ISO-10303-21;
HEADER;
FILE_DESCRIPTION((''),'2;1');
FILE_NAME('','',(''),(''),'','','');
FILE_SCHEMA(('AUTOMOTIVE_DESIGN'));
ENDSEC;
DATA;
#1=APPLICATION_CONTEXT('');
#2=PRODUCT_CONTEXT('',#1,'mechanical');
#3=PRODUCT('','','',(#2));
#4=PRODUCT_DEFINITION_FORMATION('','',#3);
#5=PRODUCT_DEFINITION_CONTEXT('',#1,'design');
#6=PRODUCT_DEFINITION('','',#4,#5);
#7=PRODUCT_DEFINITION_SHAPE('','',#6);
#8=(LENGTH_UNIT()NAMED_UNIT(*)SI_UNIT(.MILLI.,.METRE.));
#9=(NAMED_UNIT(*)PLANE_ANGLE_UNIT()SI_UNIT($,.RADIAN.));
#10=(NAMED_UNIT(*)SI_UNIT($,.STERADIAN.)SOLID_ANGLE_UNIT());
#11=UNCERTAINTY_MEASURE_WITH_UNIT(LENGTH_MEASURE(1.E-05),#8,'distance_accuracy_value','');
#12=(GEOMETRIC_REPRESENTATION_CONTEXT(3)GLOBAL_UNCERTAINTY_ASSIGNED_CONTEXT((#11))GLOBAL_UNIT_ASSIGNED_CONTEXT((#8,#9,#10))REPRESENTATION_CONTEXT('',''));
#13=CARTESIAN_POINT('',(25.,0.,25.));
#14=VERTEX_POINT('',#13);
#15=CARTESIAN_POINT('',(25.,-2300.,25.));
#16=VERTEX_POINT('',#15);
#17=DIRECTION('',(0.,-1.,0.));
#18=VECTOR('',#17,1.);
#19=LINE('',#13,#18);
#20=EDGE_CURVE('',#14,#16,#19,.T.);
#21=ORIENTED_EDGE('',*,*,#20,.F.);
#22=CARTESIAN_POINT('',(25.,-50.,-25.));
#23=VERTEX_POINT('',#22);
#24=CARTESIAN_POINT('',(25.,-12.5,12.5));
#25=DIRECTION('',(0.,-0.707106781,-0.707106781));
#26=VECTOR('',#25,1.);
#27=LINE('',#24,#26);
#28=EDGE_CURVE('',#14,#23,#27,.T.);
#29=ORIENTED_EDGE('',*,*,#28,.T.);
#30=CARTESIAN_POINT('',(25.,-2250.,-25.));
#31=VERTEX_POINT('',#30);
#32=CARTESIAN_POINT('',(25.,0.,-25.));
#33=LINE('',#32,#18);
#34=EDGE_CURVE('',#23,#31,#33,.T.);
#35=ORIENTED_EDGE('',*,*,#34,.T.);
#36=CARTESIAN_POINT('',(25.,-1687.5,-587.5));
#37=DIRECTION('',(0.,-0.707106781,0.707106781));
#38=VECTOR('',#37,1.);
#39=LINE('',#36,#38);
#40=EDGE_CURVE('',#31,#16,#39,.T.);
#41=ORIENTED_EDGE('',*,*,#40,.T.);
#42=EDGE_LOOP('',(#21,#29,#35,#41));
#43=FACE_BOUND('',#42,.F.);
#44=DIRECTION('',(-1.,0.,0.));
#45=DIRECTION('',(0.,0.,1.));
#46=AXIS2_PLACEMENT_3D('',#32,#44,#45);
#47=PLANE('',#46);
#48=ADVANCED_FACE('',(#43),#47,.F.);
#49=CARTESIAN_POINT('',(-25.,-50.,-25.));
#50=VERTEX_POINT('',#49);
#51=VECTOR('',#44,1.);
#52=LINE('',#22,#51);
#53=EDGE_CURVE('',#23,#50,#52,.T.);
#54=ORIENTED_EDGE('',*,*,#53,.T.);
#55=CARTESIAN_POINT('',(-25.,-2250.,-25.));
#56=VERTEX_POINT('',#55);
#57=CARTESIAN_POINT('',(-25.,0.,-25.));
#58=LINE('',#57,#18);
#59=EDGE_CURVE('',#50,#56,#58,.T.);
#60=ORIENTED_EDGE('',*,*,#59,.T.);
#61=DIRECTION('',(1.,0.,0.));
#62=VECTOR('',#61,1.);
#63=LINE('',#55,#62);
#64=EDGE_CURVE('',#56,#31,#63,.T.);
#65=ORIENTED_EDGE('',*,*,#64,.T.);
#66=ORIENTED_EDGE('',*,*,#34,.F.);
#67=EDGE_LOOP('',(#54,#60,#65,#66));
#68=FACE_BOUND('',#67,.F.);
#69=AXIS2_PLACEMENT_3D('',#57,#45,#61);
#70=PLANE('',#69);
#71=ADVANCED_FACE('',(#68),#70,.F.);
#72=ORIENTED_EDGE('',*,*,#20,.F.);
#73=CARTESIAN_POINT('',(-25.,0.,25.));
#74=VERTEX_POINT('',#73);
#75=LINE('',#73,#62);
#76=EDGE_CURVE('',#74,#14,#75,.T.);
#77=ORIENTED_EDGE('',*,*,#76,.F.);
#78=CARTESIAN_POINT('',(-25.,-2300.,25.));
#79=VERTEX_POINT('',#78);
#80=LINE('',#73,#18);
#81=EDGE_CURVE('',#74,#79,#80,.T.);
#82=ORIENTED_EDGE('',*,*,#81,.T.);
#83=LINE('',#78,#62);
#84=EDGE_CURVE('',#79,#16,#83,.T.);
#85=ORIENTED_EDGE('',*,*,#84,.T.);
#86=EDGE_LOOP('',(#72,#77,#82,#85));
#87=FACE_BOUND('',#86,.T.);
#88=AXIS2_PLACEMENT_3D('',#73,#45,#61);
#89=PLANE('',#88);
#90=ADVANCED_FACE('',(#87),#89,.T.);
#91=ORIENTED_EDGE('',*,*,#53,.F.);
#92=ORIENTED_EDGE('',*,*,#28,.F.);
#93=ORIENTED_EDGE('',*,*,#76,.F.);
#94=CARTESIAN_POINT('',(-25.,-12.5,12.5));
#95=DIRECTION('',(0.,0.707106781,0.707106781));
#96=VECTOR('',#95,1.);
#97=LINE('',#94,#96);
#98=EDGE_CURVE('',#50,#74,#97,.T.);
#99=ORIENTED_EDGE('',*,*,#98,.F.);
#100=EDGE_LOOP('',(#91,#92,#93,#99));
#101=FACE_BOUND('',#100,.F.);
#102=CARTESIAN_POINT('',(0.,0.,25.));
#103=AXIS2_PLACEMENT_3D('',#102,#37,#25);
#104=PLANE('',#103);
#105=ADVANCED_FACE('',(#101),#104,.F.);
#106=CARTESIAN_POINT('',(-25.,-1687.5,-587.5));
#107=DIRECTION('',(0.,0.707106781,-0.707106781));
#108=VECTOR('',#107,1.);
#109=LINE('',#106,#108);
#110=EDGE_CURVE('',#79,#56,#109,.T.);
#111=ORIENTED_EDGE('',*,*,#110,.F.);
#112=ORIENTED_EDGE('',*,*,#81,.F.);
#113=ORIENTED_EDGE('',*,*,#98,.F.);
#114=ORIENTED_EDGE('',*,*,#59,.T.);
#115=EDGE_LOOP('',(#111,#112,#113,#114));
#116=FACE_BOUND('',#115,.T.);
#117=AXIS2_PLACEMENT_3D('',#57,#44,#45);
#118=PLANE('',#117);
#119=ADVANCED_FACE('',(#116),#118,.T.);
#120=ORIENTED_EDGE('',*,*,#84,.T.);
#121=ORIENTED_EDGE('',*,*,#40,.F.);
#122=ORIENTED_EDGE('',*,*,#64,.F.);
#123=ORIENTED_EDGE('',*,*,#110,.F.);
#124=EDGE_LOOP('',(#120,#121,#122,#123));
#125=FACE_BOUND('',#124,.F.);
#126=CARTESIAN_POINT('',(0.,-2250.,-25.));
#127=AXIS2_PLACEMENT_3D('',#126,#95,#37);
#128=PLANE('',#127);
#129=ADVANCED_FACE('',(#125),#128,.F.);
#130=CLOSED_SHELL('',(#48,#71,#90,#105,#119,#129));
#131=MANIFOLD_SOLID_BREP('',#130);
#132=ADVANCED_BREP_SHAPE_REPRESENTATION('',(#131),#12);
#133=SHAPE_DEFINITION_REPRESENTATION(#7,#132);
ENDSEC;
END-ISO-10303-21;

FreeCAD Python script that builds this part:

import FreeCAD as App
import Part
import Sketcher
Q = App.Units.Quantity

doc = App.newDocument("Part")
body = doc.addObject("PartDesign::Body", "Body")

sketch1 = body.newObject("Sketcher::SketchObject", "Sketch")
sketch1.AttachmentSupport = (doc.getObject("XZ_Plane"), [""])
sketch1.MapMode = "FlatFace"
sketch1.addGeometry([
    Part.LineSegment(App.Vector(-25, 25, 0), App.Vector(-25, -25, 0)),
    Part.LineSegment(App.Vector(-25, -25, 0), App.Vector(25, -25, 0)),
    Part.LineSegment(App.Vector(25, -25, 0), App.Vector(25, 25, 0)),
    Part.LineSegment(App.Vector(25, 25, 0), App.Vector(-25, 25, 0)),
], False)
sketch1.addConstraint([
    Sketcher.Constraint("Coincident", 0, 2, 1, 1),
    Sketcher.Constraint("Coincident", 1, 2, 2, 1),
    Sketcher.Constraint("Coincident", 2, 2, 3, 1),
    Sketcher.Constraint("Coincident", 3, 2, 0, 1),
    Sketcher.Constraint("Vertical", 0),
    Sketcher.Constraint("Horizontal", 1),
    Sketcher.Constraint("Vertical", 2),
    Sketcher.Constraint("Horizontal", 3),
    Sketcher.Constraint("Symmetric", 0, 2, 2, 2, -1, 1),
    Sketcher.Constraint("Equal", 3, 0),
    Sketcher.Constraint("DistanceX", 1, 1, 1, 2, Q("50 mm")),
])
pad1 = body.newObject("PartDesign::Pad", "Pad")
pad1.Profile = sketch1
pad1.Length = 2300

sketch2 = body.newObject("Sketcher::SketchObject", "Sketch001")
sketch2.AttachmentSupport = (doc.getObject("YZ_Plane"), [""])
sketch2.MapMode = "FlatFace"
sketch2.addGeometry([
    Part.LineSegment(App.Vector(-2300, -25, 0), App.Vector(-2250, -25, 0)),
    Part.LineSegment(App.Vector(-2250, -25, 0), App.Vector(-2300, 25, 0)),
    Part.LineSegment(App.Vector(-2300, 25, 0), App.Vector(-2300, -25, 0)),
    Part.LineSegment(App.Vector(0, 25, 0), App.Vector(-50, -25, 0)),
    Part.LineSegment(App.Vector(-50, -25, 0), App.Vector(0, -25, 0)),
    Part.LineSegment(App.Vector(0, -25, 0), App.Vector(0, 25, 0)),
], False)
sketch2.addConstraint([
    Sketcher.Constraint("Coincident", 0, 2, 1, 1),
    Sketcher.Constraint("Coincident", 1, 2, 2, 1),
    Sketcher.Constraint("Coincident", 2, 2, 0, 1),
    Sketcher.Constraint("Coincident", 3, 2, 4, 1),
    Sketcher.Constraint("Coincident", 4, 2, 5, 1),
    Sketcher.Constraint("Coincident", 5, 2, 3, 1),
    Sketcher.Constraint("Horizontal", 0),
    Sketcher.Constraint("Vertical", 2),
    Sketcher.Constraint("Horizontal", 4),
    Sketcher.Constraint("Vertical", 5),
    Sketcher.Constraint("Symmetric", 4, 2, 5, 2, -1, 1),
    Sketcher.Constraint("Perpendicular", 1, 3),
    Sketcher.Constraint("Horizontal", 2, 2, 3, 2),
    Sketcher.Constraint("Horizontal", 1, 2, 5, 2),
    Sketcher.Constraint("Equal", 0, 4),
    Sketcher.Constraint("DistanceX", 0, 1, 0, 2, Q("50 mm")),
    Sketcher.Constraint("DistanceX", 0, 2, -1, 1, Q("2250 mm")),
])
pocket1 = body.newObject("PartDesign::Pocket", "Pocket")
pocket1.Profile = sketch2
pocket1.Type = "ThroughAll"
pocket1.Midplane = True

doc.recompute()
